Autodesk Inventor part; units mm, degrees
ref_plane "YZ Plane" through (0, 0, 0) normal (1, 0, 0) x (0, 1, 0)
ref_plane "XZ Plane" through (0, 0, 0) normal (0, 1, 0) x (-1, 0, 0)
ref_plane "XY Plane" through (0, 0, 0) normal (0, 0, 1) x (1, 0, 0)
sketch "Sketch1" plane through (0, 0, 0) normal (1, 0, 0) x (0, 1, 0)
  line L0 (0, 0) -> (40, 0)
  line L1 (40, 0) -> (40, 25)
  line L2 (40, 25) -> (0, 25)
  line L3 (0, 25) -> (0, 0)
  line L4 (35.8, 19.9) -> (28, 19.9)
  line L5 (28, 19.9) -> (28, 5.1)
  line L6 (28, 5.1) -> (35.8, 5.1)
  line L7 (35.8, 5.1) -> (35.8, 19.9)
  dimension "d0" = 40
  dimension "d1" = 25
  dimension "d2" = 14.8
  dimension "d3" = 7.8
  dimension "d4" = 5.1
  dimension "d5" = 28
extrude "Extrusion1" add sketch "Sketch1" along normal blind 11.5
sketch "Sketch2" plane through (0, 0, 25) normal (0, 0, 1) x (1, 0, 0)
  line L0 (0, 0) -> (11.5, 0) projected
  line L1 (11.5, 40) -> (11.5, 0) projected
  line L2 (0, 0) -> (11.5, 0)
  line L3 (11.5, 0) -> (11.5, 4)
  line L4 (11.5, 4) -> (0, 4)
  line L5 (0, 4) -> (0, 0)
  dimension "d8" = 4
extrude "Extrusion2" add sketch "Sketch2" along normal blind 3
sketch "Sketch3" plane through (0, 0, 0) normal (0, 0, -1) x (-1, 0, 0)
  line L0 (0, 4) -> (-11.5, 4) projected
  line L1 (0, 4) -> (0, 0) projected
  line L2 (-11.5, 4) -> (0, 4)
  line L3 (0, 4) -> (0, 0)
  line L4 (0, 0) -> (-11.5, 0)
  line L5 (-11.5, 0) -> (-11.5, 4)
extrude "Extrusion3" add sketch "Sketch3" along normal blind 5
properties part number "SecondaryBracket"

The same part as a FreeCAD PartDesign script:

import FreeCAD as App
import Part
import Sketcher
from FreeCAD import Vector
Q = App.Units.Quantity

doc = App.newDocument("Part")
body = doc.addObject("PartDesign::Body", "Body")

# Sketch on YZ plane
sketch1 = body.newObject("Sketcher::SketchObject", "Sketch")
sketch1.AttachmentSupport = (doc.getObject("YZ_Plane"), [""])
sketch1.MapMode = "FlatFace"
sketch1.addGeometry([
    Part.LineSegment(Vector(0, 25, 0), Vector(0, 0, 0)),  # 0
    Part.LineSegment(Vector(0, 0, 0), Vector(40, 0, 0)),  # 1
    Part.LineSegment(Vector(40, 0, 0), Vector(40, 25, 0)),  # 2
    Part.LineSegment(Vector(40, 25, 0), Vector(0, 25, 0)),  # 3
    Part.LineSegment(Vector(28, 20, 0), Vector(36, 20, 0)),  # 4
    Part.LineSegment(Vector(36, 20, 0), Vector(36, 5, 0)),  # 5
    Part.LineSegment(Vector(36, 5, 0), Vector(28, 5, 0)),  # 6
    Part.LineSegment(Vector(28, 5, 0), Vector(28, 20, 0)),  # 7
], False)
sketch1.addConstraint([
    Sketcher.Constraint("Coincident", 0, 2, 1, 1),
    Sketcher.Constraint("Coincident", 1, 2, 2, 1),
    Sketcher.Constraint("Coincident", 2, 2, 3, 1),
    Sketcher.Constraint("Coincident", 3, 2, 0, 1),
    Sketcher.Constraint("Coincident", 4, 2, 5, 1),
    Sketcher.Constraint("Coincident", 5, 2, 6, 1),
    Sketcher.Constraint("Coincident", 6, 2, 7, 1),
    Sketcher.Constraint("Coincident", 7, 2, 4, 1),
    Sketcher.Constraint("Vertical", 0),
    Sketcher.Constraint("Horizontal", 1),
    Sketcher.Constraint("Vertical", 2),
    Sketcher.Constraint("Horizontal", 3),
    Sketcher.Constraint("Horizontal", 4),
    Sketcher.Constraint("Vertical", 5),
    Sketcher.Constraint("Horizontal", 6),
    Sketcher.Constraint("Vertical", 7),
    Sketcher.Constraint("Coincident", 0, 2, -1, 1),
    Sketcher.Constraint("DistanceX", 1, 1, 1, 2, Q("40 mm")),
    Sketcher.Constraint("DistanceY", 0, 2, 0, 1, Q("25 mm")),
    Sketcher.Constraint("DistanceX", 4, 1, 4, 2, Q("7.8 mm")),
    Sketcher.Constraint("DistanceY", 5, 2, 5, 1, Q("14.8 mm")),
    Sketcher.Constraint("DistanceX", -1, 1, 6, 2, Q("28 mm")),
    Sketcher.Constraint("DistanceY", -1, 1, 5, 2, Q("5.1 mm")),
])
pad1 = body.newObject("PartDesign::Pad", "Pad")
pad1.Profile = sketch1
pad1.Length = 11.5

# Sketch on XY plane
sketch2 = body.newObject("Sketcher::SketchObject", "Sketch001")
sketch2.AttachmentSupport = (doc.getObject("XY_Plane"), [""])
sketch2.MapMode = "FlatFace"
sketch2.AttachmentOffset = App.Placement(Vector(0, 0, 25), App.Rotation())
sketch2.addGeometry([
    Part.LineSegment(Vector(0, 4, 0), Vector(0, 0, 0)),
    Part.LineSegment(Vector(0, 0, 0), Vector(11.5, 0, 0)),
    Part.LineSegment(Vector(11.5, 0, 0), Vector(11.5, 4, 0)),
    Part.LineSegment(Vector(11.5, 4, 0), Vector(0, 4, 0)),
], False)
sketch2.addConstraint([
    Sketcher.Constraint("Coincident", 0, 2, 1, 1),
    Sketcher.Constraint("Coincident", 1, 2, 2, 1),
    Sketcher.Constraint("Coincident", 2, 2, 3, 1),
    Sketcher.Constraint("Coincident", 3, 2, 0, 1),
    Sketcher.Constraint("Vertical", 0),
    Sketcher.Constraint("Horizontal", 1),
    Sketcher.Constraint("Vertical", 2),
    Sketcher.Constraint("Horizontal", 3),
    Sketcher.Constraint("Coincident", 0, 2, -1, 1),
    Sketcher.Constraint("DistanceY", 0, 2, 0, 1, Q("4 mm")),
    Sketcher.Constraint("DistanceX", 1, 1, 1, 2, Q("11.5 mm")),
])
pad2 = body.newObject("PartDesign::Pad", "Pad001")
pad2.Profile = sketch2
pad2.Length = 3

# Sketch on XY plane
sketch3 = body.newObject("Sketcher::SketchObject", "Sketch002")
sketch3.AttachmentSupport = (doc.getObject("XY_Plane"), [""])
sketch3.MapMode = "FlatFace"
sketch3.addGeometry([
    Part.LineSegment(Vector(0, 0, 0), Vector(0, 4, 0)),
    Part.LineSegment(Vector(0, 4, 0), Vector(11.5, 4, 0)),
    Part.LineSegment(Vector(11.5, 4, 0), Vector(11.5, 0, 0)),
    Part.LineSegment(Vector(11.5, 0, 0), Vector(0, 0, 0)),
], False)
sketch3.addConstraint([
    Sketcher.Constraint("Coincident", 0, 2, 1, 1),
    Sketcher.Constraint("Coincident", 1, 2, 2, 1),
    Sketcher.Constraint("Coincident", 2, 2, 3, 1),
    Sketcher.Constraint("Coincident", 3, 2, 0, 1),
    Sketcher.Constraint("Vertical", 0),
    Sketcher.Constraint("Horizontal", 1),
    Sketcher.Constraint("Vertical", 2),
    Sketcher.Constraint("Horizontal", 3),
    Sketcher.Constraint("Coincident", 3, 2, -1, 1),
    Sketcher.Constraint("DistanceY", 0, 1, 0, 2, Q("4 mm")),
    Sketcher.Constraint("DistanceX", 1, 1, 1, 2, Q("11.5 mm")),
])
pad3 = body.newObject("PartDesign::Pad", "Pad002")
pad3.Profile = sketch3
pad3.Length = 5
pad3.Reversed = True

doc.recompute()
